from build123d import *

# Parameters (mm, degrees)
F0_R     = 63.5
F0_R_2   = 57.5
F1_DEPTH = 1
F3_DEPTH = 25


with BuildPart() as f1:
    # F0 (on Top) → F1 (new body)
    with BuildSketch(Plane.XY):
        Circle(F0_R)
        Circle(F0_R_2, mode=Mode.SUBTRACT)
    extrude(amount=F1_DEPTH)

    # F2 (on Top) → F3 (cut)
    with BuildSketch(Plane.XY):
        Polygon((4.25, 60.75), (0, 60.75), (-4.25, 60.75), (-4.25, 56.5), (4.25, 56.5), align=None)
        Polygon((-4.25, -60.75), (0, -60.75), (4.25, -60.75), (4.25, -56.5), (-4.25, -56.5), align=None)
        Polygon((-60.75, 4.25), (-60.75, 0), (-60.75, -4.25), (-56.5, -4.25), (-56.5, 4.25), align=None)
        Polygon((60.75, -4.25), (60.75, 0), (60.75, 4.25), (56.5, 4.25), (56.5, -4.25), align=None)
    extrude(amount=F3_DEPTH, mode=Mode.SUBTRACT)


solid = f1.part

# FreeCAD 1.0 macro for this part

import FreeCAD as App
import Part
import Sketcher
from FreeCAD import Vector
Q = App.Units.Quantity


def add_polygon(sketch, points):
    """Adds a closed chain of lines whose ends are joined by coincident constraints."""
    first, n = sketch.GeometryCount, len(points)
    for a, b in zip(points, points[1:] + points[:1]):
        sketch.addGeometry(Part.LineSegment(App.Vector(*a, 0), App.Vector(*b, 0)), False)
    for i in range(n):
        sketch.addConstraint(Sketcher.Constraint("Coincident", first + i, 2, first + (i + 1) % n, 1))

doc = App.newDocument("Part")
body = doc.addObject("PartDesign::Body", "Body")

# Sketch on XY plane
sketch1 = body.newObject("Sketcher::SketchObject", "Sketch")
sketch1.AttachmentSupport = (doc.getObject("XY_Plane"), [""])
sketch1.MapMode = "FlatFace"
sketch1.addGeometry([
    Part.Circle(Vector(0, 0, 0), Vector(0, 0, 1), 63.5),
    Part.Circle(Vector(0, 0, 0), Vector(0, 0, 1), 57.5),
], False)
sketch1.addConstraint([
    Sketcher.Constraint("Coincident", 0, 3, -1, 1),
    Sketcher.Constraint("Coincident", 1, 3, -1, 1),
    Sketcher.Constraint("Diameter", 0, Q("127 mm")),
    Sketcher.Constraint("Diameter", 1, Q("115 mm")),
])
pad1 = body.newObject("PartDesign::Pad", "Pad")
pad1.Profile = sketch1
pad1.Length = 1

# Sketch on XY plane
sketch2 = body.newObject("Sketcher::SketchObject", "Sketch001")
sketch2.AttachmentSupport = (doc.getObject("XY_Plane"), [""])
sketch2.MapMode = "FlatFace"
add_polygon(sketch2, [(4.25, 60.75), (-4.25, 60.75), (-4.25, 56.5), (4.25, 56.5)])  # lines 0-3
add_polygon(sketch2, [(-4.25, -60.75), (4.25, -60.75), (4.25, -56.5), (-4.25, -56.5)])  # lines 4-7
add_polygon(sketch2, [(-60.75, 4.25), (-60.75, -4.25), (-56.5, -4.25), (-56.5, 4.25)])  # lines 8-11
add_polygon(sketch2, [(60.75, -4.25), (60.75, 4.25), (56.5, 4.25), (56.5, -4.25)])  # lines 12-15
sketch2.addConstraint([
    Sketcher.Constraint("Horizontal", 0),
    Sketcher.Constraint("Vertical", 1),
    Sketcher.Constraint("Horizontal", 2),
    Sketcher.Constraint("Vertical", 3),
    Sketcher.Constraint("Horizontal", 4),
    Sketcher.Constraint("Vertical", 5),
    Sketcher.Constraint("Horizontal", 6),
    Sketcher.Constraint("Vertical", 7),
    Sketcher.Constraint("Vertical", 8),
    Sketcher.Constraint("Horizontal", 9),
    Sketcher.Constraint("Vertical", 10),
    Sketcher.Constraint("Horizontal", 11),
    Sketcher.Constraint("Vertical", 12),
    Sketcher.Constraint("Horizontal", 13),
    Sketcher.Constraint("Vertical", 14),
    Sketcher.Constraint("Horizontal", 15),
    Sketcher.Constraint("Symmetric", 0, 2, 4, 2, -1, 1),
    Sketcher.Constraint("Symmetric", 2, 2, 6, 2, -1, 1),
    Sketcher.Constraint("Symmetric", 8, 2, 12, 2, -1, 1),
    Sketcher.Constraint("Symmetric", 10, 2, 14, 2, -1, 1),
    Sketcher.Constraint("Horizontal", 11, 2, 12, 2),
    Sketcher.Constraint("Vertical", 3, 2, 4, 2),
    Sketcher.Constraint("Equal", 15, 1),
    Sketcher.Constraint("Equal", 6, 8),
    Sketcher.Constraint("DistanceX", 0, 2, 0, 1, Q("8.5 mm")),
    Sketcher.Constraint("DistanceY", 5, 2, 2, 2, Q("113 mm")),
    Sketcher.Constraint("DistanceX", 8, 2, 5, 2, Q("65 mm")),
    Sketcher.Constraint("DistanceY", 8, 2, 0, 2, Q("65 mm")),
])
pocket1 = body.newObject("PartDesign::Pocket", "Pocket")
pocket1.Profile = sketch2
pocket1.Length = 25
pocket1.Reversed = True

doc.recompute()
